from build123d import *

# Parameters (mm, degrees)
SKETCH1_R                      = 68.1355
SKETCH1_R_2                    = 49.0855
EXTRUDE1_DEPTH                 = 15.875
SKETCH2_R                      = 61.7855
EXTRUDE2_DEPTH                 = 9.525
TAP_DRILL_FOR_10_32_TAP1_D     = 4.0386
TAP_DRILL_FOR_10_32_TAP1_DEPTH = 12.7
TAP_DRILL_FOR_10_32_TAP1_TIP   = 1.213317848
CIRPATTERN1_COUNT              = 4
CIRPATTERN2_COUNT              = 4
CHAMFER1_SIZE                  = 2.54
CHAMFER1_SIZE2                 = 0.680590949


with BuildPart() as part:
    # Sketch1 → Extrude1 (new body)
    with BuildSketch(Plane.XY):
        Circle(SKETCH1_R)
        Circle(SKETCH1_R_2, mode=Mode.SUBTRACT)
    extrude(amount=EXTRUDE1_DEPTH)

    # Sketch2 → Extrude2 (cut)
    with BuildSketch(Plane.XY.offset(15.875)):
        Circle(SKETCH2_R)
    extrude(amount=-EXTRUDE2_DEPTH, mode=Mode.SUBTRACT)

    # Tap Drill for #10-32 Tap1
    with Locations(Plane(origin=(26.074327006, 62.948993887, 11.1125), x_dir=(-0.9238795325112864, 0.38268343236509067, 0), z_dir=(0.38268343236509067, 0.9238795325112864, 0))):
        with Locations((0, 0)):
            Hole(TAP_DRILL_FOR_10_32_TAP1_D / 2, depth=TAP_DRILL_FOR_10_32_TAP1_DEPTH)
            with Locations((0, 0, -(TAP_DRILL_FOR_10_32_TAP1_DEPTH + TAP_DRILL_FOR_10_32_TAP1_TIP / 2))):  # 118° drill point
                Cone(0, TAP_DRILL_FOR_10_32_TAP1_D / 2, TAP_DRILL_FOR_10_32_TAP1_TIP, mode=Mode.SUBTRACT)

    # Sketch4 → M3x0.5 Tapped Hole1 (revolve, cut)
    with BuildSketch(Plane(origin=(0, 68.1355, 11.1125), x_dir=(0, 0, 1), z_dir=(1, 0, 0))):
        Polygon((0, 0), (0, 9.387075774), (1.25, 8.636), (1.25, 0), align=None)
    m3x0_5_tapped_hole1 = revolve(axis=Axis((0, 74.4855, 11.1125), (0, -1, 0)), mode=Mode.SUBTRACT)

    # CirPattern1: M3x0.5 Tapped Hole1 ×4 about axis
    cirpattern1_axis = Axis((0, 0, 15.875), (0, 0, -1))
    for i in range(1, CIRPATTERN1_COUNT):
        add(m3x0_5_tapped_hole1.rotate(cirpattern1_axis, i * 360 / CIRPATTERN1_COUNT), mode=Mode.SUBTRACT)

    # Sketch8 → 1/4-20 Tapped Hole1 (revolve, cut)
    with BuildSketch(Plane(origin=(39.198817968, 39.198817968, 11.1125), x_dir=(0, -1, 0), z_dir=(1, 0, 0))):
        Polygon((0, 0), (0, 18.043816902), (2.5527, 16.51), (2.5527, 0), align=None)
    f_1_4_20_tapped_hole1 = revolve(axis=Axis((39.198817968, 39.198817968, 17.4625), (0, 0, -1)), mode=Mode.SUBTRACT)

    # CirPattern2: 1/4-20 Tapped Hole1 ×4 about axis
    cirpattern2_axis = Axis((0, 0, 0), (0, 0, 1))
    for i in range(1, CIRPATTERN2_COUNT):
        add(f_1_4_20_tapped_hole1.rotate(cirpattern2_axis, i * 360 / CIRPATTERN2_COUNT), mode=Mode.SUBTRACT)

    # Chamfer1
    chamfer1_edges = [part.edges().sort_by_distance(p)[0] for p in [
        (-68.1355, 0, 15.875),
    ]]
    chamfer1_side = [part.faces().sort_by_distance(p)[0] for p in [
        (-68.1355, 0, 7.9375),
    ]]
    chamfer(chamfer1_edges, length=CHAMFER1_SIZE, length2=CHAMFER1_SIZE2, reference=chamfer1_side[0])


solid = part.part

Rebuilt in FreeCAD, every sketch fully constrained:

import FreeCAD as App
import Part
import Sketcher
from FreeCAD import Vector
Q = App.Units.Quantity


def edges_at(feature, points):
    """Names of the edges that pass closest to the given points."""
    edges = feature.Shape.Edges
    near = lambda p: min(range(len(edges)), key=lambda i: edges[i].distToShape(Part.Vertex(*p))[0])
    return sorted({f"Edge{near(p) + 1}" for p in points})


def add_polygon(sketch, points):
    """Adds a closed chain of lines whose ends are joined by coincident constraints."""
    first, n = sketch.GeometryCount, len(points)
    for a, b in zip(points, points[1:] + points[:1]):
        sketch.addGeometry(Part.LineSegment(App.Vector(*a, 0), App.Vector(*b, 0)), False)
    for i in range(n):
        sketch.addConstraint(Sketcher.Constraint("Coincident", first + i, 2, first + (i + 1) % n, 1))

doc = App.newDocument("Part")
body = doc.addObject("PartDesign::Body", "Body")

sketch1 = doc.addObject("Sketcher::SketchObject", "Sketch")
body.addObject(sketch1)
sketch1.AttachmentSupport = (doc.XY_Plane, [""])
sketch1.MapMode = "FlatFace"
sketch1.addGeometry([
    Part.Circle(Vector(0, 0, 0), Vector(0, 0, 1), 68),
    Part.Circle(Vector(0, 0, 0), Vector(0, 0, 1), 49),
], False)
sketch1.addConstraint([
    Sketcher.Constraint("Coincident", 0, 3, -1, 1),
    Sketcher.Constraint("Coincident", 1, 3, -1, 1),
    Sketcher.Constraint("Diameter", 0, Q("5.365 in")),
    Sketcher.Constraint("Diameter", 1, Q("3.865 in")),
])
pad1 = doc.addObject("PartDesign::Pad", "Pad")
body.addObject(pad1)
pad1.Profile = sketch1
pad1.Length = Q("0.625 in")

sketch2 = doc.addObject("Sketcher::SketchObject", "Sketch001")
body.addObject(sketch2)
sketch2.AttachmentSupport = (doc.XY_Plane, [""])
sketch2.MapMode = "FlatFace"
sketch2.AttachmentOffset = App.Placement(Vector(0, 0, 0.625 * 25.4), App.Rotation())
sketch2.addGeometry(Part.Circle(Vector(0, 0, 0), Vector(0, 0, 1), 62), False)
sketch2.addConstraint([
    Sketcher.Constraint("Coincident", 0, 3, -1, 1),
    Sketcher.Constraint("Diameter", 0, Q("4.865 in")),
])
pocket1 = doc.addObject("PartDesign::Pocket", "Pocket")
body.addObject(pocket1)
pocket1.Profile = sketch2
pocket1.Length = Q("0.375 in")

sketch3 = doc.addObject("Sketcher::SketchObject", "Sketch002")
body.addObject(sketch3)
sketch3.Placement = App.Placement(Vector(26.074327, 62.948994, 0), App.Rotation(Vector(-0.923879533, 0.382683432, 0), Vector(0, 0, 1.000000001), Vector(0.382683432, 0.923879533, 0), "ZXY"))
sketch3.addGeometry(Part.Circle(Vector(0, 11.1, 0), Vector(0, 0, 1), 2), False)
sketch3.addConstraint([
    Sketcher.Constraint("PointOnObject", 0, 3, -2),
    Sketcher.Constraint("Diameter", 0, Q("0.159 in")),
    Sketcher.Constraint("DistanceY", -1, 1, 0, 3, Q("0.4375 in")),
])
doc.recompute()
hole = doc.addObject("PartDesign::Hole", "Hole")
body.addObject(hole)
hole.Profile = sketch3
hole.ThreadType = "None"
hole.Diameter = Q("0.159 in")
hole.DepthType = "Dimension"
hole.Depth = Q("0.5 in")
hole.DrillPoint = "Angled"
hole.DrillPointAngle = 118

sketch4 = doc.addObject("Sketcher::SketchObject", "Sketch003")
body.addObject(sketch4)
sketch4.AttachmentSupport = (doc.YZ_Plane, [""])
sketch4.MapMode = "FlatFace"
add_polygon(sketch4, [(58.7, 11.1), (68.1, 11.1), (68.1, 12.4), (59.5, 12.4)])
sketch4.addGeometry(Part.LineSegment(Vector(68.1, 11.1, 0), Vector(58.7, 11.1, 0)), True)
sketch4.addConstraint([
    Sketcher.Constraint("Horizontal", 0),
    Sketcher.Constraint("Vertical", 1),
    Sketcher.Constraint("Horizontal", 2),
    Sketcher.Constraint("Horizontal", 4),
    Sketcher.Constraint("Coincident", 4, 1, 0, 2),
    Sketcher.Constraint("Equal", 0, 4),
    Sketcher.Constraint("Angle", 3, Q("-121 deg")),
    Sketcher.Constraint("DistanceX", 2, 2, 2, 1, Q("0.34 in")),
    Sketcher.Constraint("DistanceY", -1, 1, 0, 2, Q("0.4375 in")),
    Sketcher.Constraint("DistanceY", 1, 1, 1, 2, Q("1.25 mm")),
    Sketcher.Constraint("DistanceX", -1, 1, 0, 2, Q("2.6825 in")),
])
groove = doc.addObject("PartDesign::Groove", "Groove")
body.addObject(groove)
groove.Profile = sketch4
groove.ReferenceAxis = (sketch4, ["Axis0"])
groove.Angle = 360
doc.recompute()

polarpattern = doc.addObject("PartDesign::PolarPattern", "PolarPattern")
body.addObject(polarpattern)
polarpattern.Originals = [groove]
polarpattern.Axis = (doc.Z_Axis, [""])
polarpattern.Angle = 360
polarpattern.Occurrences = 4
body.Tip = polarpattern

sketch5 = doc.addObject("Sketcher::SketchObject", "Sketch004")
body.addObject(sketch5)
sketch5.AttachmentSupport = (doc.YZ_Plane, [""])
sketch5.MapMode = "FlatFace"
sketch5.AttachmentOffset = App.Placement(Vector(0, 0, 39.198818), App.Rotation())
add_polygon(sketch5, [(39.2, -6.9), (39.2, 11.1), (36.6, 11.1), (36.6, -5.4)])
sketch5.addGeometry(Part.LineSegment(Vector(39.2, 11.1, 0), Vector(39.2, -6.9, 0)), True)
sketch5.addConstraint([
    Sketcher.Constraint("Vertical", 0),
    Sketcher.Constraint("Horizontal", 1),
    Sketcher.Constraint("Vertical", 2),
    Sketcher.Constraint("Vertical", 4),
    Sketcher.Constraint("Coincident", 4, 1, 0, 2),
    Sketcher.Constraint("Equal", 0, 4),
    Sketcher.Constraint("Angle", 3, Q("-31 deg")),
    Sketcher.Constraint("DistanceY", 2, 2, 2, 1, Q("0.65 in")),
    Sketcher.Constraint("DistanceX", 1, 2, 1, 1, Q("0.1005 in")),
    Sketcher.Constraint("DistanceY", -1, 1, 0, 2, Q("0.4375 in")),
    Sketcher.Constraint("DistanceX", -1, 1, 0, 2, Q("39.198818 mm")),
])
groove2 = doc.addObject("PartDesign::Groove", "Groove001")
body.addObject(groove2)
groove2.Profile = sketch5
groove2.ReferenceAxis = (sketch5, ["Axis0"])
groove2.Angle = 360
doc.recompute()

polarpattern2 = doc.addObject("PartDesign::PolarPattern", "PolarPattern001")
body.addObject(polarpattern2)
polarpattern2.Originals = [groove2]
polarpattern2.Axis = (doc.Z_Axis, [""])
polarpattern2.Angle = 360
polarpattern2.Occurrences = 4
body.Tip = polarpattern2
doc.recompute()

chamfer = doc.addObject("PartDesign::Chamfer", "Chamfer")
body.addObject(chamfer)
chamfer.Base = (polarpattern2, edges_at(polarpattern2, [(-68.135, 0, 15.875)]))
chamfer.ChamferType = "Two distances"
chamfer.Size = Q("0.1 in")
chamfer.Size2 = 0.680591

doc.recompute()
